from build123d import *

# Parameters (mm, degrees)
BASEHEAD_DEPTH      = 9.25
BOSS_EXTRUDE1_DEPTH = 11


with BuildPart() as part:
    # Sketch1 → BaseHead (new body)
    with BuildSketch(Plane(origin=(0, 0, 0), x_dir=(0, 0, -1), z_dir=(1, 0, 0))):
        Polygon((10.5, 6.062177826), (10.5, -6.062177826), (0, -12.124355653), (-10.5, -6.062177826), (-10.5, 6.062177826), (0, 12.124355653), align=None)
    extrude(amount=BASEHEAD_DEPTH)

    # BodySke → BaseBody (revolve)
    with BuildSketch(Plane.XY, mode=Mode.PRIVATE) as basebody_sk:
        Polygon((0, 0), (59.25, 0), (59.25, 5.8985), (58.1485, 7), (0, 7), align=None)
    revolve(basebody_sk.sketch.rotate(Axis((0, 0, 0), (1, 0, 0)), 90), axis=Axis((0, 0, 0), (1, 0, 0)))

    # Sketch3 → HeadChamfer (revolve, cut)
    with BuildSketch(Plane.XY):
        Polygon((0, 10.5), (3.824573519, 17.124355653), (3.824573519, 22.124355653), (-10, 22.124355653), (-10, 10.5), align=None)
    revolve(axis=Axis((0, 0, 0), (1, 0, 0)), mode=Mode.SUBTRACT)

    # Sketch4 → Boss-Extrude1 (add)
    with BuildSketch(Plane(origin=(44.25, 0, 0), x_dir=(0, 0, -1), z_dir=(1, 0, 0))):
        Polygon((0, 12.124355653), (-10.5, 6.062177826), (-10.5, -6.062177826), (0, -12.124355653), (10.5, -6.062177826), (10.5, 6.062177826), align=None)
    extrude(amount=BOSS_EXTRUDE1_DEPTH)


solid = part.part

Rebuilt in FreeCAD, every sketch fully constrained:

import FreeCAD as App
import Part
import Sketcher
Q = App.Units.Quantity


def add_polygon(sketch, points):
    """Adds a closed chain of lines whose ends are joined by coincident constraints."""
    first, n = sketch.GeometryCount, len(points)
    for a, b in zip(points, points[1:] + points[:1]):
        sketch.addGeometry(Part.LineSegment(App.Vector(*a, 0), App.Vector(*b, 0)), False)
    for i in range(n):
        sketch.addConstraint(Sketcher.Constraint("Coincident", first + i, 2, first + (i + 1) % n, 1))

doc = App.newDocument("Part")
body = doc.addObject("PartDesign::Body", "Body")

# Sketch on YZ plane
sketch1 = body.newObject("Sketcher::SketchObject", "Sketch")
sketch1.AttachmentSupport = (doc.getObject("YZ_Plane"), [""])
sketch1.MapMode = "FlatFace"
add_polygon(sketch1, [(-6, -10), (6, -10), (12, 0), (6, 10), (-6, 10), (-12, 0)])  # lines 0-5
sketch1.addConstraint([
    Sketcher.Constraint("Horizontal", 0),
    Sketcher.Constraint("Horizontal", 3),
    Sketcher.Constraint("Symmetric", 0, 2, 3, 2, -1, 1),
    Sketcher.Constraint("Symmetric", 1, 2, 4, 2, -1, 1),
    Sketcher.Constraint("PointOnObject", 1, 2, -1),
    Sketcher.Constraint("Parallel", 2, 5),
    Sketcher.Constraint("Vertical", 0, 2, 2, 2),
    Sketcher.Constraint("Angle", 1, Q("60 deg")),
    Sketcher.Constraint("DistanceY", 0, 2, 2, 2, 21.0),
    Sketcher.Constraint("DistanceX", 0, 1, 0, 2, 12.124356),
])
pad1 = body.newObject("PartDesign::Pad", "Pad")
pad1.Profile = sketch1
pad1.Length = 9.25

# Sketch on XY plane
sketch2 = body.newObject("Sketcher::SketchObject", "Sketch001")
sketch2.AttachmentSupport = (doc.getObject("XY_Plane"), [""])
sketch2.MapMode = "FlatFace"
add_polygon(sketch2, [(0, 0), (59.2, 0), (59.2, 5.9), (58.1, 7), (0, 7)])  # lines 0-4
sketch2.addConstraint([
    Sketcher.Constraint("Horizontal", 0),
    Sketcher.Constraint("Vertical", 1),
    Sketcher.Constraint("Horizontal", 3),
    Sketcher.Constraint("Vertical", 4),
    Sketcher.Constraint("Coincident", 4, 2, -1, 1),
    Sketcher.Constraint("DistanceY", 4, 2, 4, 1, 7.0),
    Sketcher.Constraint("Angle", 2, Q("135 deg")),
    Sketcher.Constraint("DistanceX", 0, 1, 0, 2, 59.25),
    Sketcher.Constraint("DistanceX", 3, 2, 3, 1, 58.1485),
])
revolution = body.newObject("PartDesign::Revolution", "Revolution")
revolution.Profile = sketch2
revolution.ReferenceAxis = (sketch2, ["H_Axis"])
revolution.Angle = 360

# Sketch on XY plane
sketch3 = body.newObject("Sketcher::SketchObject", "Sketch002")
sketch3.AttachmentSupport = (doc.getObject("XY_Plane"), [""])
sketch3.MapMode = "FlatFace"
add_polygon(sketch3, [(0, 10), (4, 17), (4, 22), (-10, 22), (-10, 10)])  # lines 0-4
sketch3.addConstraint([
    Sketcher.Constraint("Vertical", 1),
    Sketcher.Constraint("Horizontal", 2),
    Sketcher.Constraint("Vertical", 3),
    Sketcher.Constraint("Horizontal", 4),
    Sketcher.Constraint("PointOnObject", 4, 2, -2),
    Sketcher.Constraint("DistanceX", 4, 1, 4, 2, 10.0),
    Sketcher.Constraint("DistanceY", 1, 1, 1, 2, 5.0),
    Sketcher.Constraint("Angle", 0, Q("60 deg")),
    Sketcher.Constraint("DistanceY", -1, 1, 3, 2, 10.5),
    Sketcher.Constraint("DistanceX", 2, 2, 2, 1, 13.824574),
])
groove = body.newObject("PartDesign::Groove", "Groove")
groove.Profile = sketch3
groove.ReferenceAxis = (sketch3, ["H_Axis"])
groove.Angle = 360

# Sketch on YZ plane
sketch4 = body.newObject("Sketcher::SketchObject", "Sketch003")
sketch4.AttachmentSupport = (doc.getObject("YZ_Plane"), [""])
sketch4.MapMode = "FlatFace"
sketch4.AttachmentOffset = App.Placement(App.Vector(0, 0, 44.25), App.Rotation())
add_polygon(sketch4, [(12, 0), (6, 10), (-6, 10), (-12, 0), (-6, -10), (6, -10)])  # lines 0-5
sketch4.addConstraint([
    Sketcher.Constraint("Horizontal", 1),
    Sketcher.Constraint("Horizontal", 4),
    Sketcher.Constraint("Symmetric", 0, 2, 3, 2, -1, 1),
    Sketcher.Constraint("Symmetric", 2, 2, 5, 2, -1, 1),
    Sketcher.Constraint("PointOnObject", 2, 2, -1),
    Sketcher.Constraint("Parallel", 2, 5),
    Sketcher.Constraint("Vertical", 1, 2, 3, 2),
    Sketcher.Constraint("Angle", 0, Q("120 deg")),
    Sketcher.Constraint("DistanceY", 3, 2, 1, 2, 21.0),
    Sketcher.Constraint("DistanceX", 1, 2, 1, 1, 12.124356),
])
pad2 = body.newObject("PartDesign::Pad", "Pad001")
pad2.Profile = sketch4
pad2.Length = 11

doc.recompute()
